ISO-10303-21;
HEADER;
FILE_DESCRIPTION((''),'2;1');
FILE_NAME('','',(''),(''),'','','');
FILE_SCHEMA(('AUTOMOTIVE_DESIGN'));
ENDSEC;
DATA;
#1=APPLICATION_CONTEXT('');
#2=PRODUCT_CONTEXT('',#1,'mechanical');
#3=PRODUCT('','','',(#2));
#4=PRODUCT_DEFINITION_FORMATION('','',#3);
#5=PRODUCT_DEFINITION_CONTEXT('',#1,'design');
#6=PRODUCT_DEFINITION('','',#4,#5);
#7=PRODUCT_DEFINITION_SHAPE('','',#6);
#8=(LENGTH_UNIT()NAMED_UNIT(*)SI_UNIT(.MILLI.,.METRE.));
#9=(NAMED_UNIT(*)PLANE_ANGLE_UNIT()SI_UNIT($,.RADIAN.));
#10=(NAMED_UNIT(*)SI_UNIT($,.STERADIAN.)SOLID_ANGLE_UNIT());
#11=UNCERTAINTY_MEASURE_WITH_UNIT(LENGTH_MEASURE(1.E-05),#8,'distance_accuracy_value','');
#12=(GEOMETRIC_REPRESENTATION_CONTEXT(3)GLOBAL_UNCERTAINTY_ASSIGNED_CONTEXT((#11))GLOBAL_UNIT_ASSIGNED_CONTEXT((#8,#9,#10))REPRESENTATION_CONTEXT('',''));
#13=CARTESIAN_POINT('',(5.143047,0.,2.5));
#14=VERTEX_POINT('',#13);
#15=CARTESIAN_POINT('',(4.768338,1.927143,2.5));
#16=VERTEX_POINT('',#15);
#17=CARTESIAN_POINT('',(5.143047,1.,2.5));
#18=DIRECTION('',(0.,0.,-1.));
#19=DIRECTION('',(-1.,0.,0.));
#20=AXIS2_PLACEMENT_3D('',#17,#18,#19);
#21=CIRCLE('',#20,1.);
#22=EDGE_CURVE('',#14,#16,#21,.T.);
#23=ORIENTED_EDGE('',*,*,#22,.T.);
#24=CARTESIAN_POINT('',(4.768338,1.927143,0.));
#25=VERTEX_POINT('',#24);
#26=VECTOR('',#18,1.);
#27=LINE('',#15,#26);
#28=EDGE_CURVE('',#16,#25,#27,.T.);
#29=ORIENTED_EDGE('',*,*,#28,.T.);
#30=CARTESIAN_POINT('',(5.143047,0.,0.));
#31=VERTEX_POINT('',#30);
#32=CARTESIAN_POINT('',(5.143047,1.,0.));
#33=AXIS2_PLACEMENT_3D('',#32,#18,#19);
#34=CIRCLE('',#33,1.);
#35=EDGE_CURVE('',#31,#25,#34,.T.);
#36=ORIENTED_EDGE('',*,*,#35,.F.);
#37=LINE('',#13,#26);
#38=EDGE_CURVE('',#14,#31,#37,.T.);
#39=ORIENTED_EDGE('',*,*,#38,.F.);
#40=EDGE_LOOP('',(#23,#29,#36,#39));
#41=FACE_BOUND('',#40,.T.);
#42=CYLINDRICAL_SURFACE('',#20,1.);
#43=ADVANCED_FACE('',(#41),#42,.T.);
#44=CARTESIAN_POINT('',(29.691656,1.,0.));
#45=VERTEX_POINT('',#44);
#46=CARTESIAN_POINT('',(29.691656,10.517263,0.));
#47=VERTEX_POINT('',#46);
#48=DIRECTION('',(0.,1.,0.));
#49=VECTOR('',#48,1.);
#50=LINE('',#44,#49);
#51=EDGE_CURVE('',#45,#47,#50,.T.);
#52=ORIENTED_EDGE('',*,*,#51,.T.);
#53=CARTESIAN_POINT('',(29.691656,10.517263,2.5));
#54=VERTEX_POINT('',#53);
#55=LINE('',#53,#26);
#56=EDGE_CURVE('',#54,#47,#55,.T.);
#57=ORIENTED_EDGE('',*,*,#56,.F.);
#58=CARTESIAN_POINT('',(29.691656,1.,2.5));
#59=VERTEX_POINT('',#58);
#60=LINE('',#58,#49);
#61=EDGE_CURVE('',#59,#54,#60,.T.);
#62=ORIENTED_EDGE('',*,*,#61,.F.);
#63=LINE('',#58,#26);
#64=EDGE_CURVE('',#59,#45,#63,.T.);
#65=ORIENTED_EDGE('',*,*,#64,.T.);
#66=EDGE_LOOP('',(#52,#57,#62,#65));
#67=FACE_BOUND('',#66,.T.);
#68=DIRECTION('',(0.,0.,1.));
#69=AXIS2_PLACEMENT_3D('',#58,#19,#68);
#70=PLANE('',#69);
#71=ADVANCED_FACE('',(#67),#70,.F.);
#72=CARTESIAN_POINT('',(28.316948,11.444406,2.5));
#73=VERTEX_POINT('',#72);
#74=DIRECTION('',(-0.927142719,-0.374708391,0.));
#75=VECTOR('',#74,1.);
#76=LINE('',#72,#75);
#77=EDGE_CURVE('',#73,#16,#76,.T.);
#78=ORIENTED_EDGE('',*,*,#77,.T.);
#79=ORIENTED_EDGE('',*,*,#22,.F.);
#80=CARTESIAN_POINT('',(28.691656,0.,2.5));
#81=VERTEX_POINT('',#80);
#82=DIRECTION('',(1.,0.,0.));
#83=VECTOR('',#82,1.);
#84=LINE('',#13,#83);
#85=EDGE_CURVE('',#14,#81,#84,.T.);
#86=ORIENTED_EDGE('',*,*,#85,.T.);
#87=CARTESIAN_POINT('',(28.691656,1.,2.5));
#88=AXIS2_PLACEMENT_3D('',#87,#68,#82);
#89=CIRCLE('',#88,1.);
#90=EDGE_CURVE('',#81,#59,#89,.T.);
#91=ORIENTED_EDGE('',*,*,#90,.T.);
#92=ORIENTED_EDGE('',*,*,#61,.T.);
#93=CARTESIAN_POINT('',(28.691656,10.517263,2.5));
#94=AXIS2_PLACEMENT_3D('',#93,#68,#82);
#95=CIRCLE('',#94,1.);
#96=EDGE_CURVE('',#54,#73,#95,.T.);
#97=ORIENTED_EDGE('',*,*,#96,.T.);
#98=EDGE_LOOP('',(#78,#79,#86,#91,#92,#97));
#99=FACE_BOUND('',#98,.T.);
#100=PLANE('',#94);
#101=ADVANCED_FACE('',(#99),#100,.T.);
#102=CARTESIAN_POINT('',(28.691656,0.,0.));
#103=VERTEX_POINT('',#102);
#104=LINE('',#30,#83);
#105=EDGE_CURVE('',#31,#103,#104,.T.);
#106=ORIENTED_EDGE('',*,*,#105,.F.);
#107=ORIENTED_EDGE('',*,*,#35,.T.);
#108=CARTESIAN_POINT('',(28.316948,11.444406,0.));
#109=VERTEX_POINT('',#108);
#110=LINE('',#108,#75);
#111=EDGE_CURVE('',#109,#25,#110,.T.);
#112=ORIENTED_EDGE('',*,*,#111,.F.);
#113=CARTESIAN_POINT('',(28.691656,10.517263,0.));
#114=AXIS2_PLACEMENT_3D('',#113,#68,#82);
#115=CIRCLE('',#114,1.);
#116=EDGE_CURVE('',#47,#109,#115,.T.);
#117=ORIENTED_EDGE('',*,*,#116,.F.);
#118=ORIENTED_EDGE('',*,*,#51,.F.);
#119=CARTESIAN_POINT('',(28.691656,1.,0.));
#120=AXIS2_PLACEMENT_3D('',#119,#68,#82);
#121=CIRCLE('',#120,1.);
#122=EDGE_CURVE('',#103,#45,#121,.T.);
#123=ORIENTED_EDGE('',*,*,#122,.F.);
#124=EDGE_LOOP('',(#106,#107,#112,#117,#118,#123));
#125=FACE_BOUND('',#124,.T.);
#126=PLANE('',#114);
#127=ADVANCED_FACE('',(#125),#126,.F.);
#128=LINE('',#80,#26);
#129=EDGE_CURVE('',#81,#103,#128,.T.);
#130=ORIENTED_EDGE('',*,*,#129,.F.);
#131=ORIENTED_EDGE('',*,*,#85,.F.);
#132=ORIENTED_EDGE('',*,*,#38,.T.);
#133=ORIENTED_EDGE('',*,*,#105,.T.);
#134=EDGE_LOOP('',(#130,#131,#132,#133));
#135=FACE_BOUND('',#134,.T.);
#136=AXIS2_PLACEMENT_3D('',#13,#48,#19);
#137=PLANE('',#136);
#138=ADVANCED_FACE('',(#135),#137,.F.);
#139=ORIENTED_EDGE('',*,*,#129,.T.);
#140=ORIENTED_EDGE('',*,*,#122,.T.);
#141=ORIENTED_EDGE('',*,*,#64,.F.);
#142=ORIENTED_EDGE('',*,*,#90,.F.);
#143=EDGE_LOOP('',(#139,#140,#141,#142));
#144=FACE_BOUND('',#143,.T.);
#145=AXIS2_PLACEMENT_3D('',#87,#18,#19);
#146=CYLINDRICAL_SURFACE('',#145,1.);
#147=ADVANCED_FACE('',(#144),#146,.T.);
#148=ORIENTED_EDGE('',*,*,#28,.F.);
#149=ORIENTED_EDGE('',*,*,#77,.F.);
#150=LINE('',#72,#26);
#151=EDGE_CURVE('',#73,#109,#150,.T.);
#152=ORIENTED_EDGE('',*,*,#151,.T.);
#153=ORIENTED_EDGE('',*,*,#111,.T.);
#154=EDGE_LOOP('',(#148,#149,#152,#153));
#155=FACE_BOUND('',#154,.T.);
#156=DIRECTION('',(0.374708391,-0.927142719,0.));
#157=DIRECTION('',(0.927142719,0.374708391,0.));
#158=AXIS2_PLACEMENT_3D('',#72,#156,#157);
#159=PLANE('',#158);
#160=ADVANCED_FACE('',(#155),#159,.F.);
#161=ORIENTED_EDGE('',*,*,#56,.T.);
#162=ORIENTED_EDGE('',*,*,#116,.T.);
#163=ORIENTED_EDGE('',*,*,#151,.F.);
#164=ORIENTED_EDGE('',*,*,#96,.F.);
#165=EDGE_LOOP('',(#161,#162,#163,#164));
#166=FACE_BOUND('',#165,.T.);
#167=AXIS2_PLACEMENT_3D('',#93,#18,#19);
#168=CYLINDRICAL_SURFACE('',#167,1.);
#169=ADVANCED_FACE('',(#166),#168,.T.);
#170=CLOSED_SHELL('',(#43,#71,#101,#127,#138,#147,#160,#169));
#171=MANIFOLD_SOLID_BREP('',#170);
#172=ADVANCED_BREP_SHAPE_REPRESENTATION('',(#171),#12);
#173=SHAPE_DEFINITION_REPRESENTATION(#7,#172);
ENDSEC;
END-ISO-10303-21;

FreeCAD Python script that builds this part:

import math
import FreeCAD as App
import Part
import Sketcher

doc = App.newDocument("Part")
body = doc.addObject("PartDesign::Body", "Body")

# Sketch on XY plane
sketch1 = doc.addObject("Sketcher::SketchObject", "Sketch")
body.addObject(sketch1)
sketch1.AttachmentSupport = (doc.XY_Plane, [""])
sketch1.MapMode = "FlatFace"
sketch1.addGeometry([
    Part.LineSegment(App.Vector(5.1, 0, 0), App.Vector(28.7, 0, 0)),  # 0
    Part.ArcOfCircle(Part.Circle(App.Vector(28.7, 1, 0), App.Vector(0, 0, 1), 1), math.radians(-90), math.radians(0)),  # 1
    Part.LineSegment(App.Vector(29.7, 1, 0), App.Vector(29.7, 10.5, 0)),  # 2
    Part.ArcOfCircle(Part.Circle(App.Vector(28.7, 10.5, 0), App.Vector(0, 0, 1), 1), math.radians(0), math.radians(112)),  # 3
    Part.LineSegment(App.Vector(28.3, 11.4, 0), App.Vector(4.8, 1.9, 0)),  # 4
    Part.ArcOfCircle(Part.Circle(App.Vector(5.1, 1, 0), App.Vector(0, 0, 1), 1), math.radians(112), math.radians(270)),  # 5
], False)
sketch1.addConstraint([
    Sketcher.Constraint("Tangent", 0, 2, 1, 1),
    Sketcher.Constraint("Tangent", 1, 2, 2, 1),
    Sketcher.Constraint("Tangent", 2, 2, 3, 1),
    Sketcher.Constraint("Tangent", 3, 2, 4, 1),
    Sketcher.Constraint("Tangent", 4, 2, 5, 1),
    Sketcher.Constraint("Tangent", 5, 2, 0, 1),
    Sketcher.Constraint("Horizontal", 0),
    Sketcher.Constraint("Vertical", 2),
    Sketcher.Constraint("Equal", 1, 3),
    Sketcher.Constraint("Equal", 3, 5),
    Sketcher.Constraint("PointOnObject", 0, 2, -1),
    Sketcher.Constraint("Radius", 1, 1.0),
    Sketcher.Constraint("DistanceX", 0, 1, 0, 2, 23.548609),
    Sketcher.Constraint("Distance", 4, 25.39912),
    Sketcher.Constraint("DistanceX", -1, 1, 4, 2, 4.768338),
])
pad1 = doc.addObject("PartDesign::Pad", "Pad")
body.addObject(pad1)
pad1.Profile = sketch1
pad1.Length = 2.5

doc.recompute()
